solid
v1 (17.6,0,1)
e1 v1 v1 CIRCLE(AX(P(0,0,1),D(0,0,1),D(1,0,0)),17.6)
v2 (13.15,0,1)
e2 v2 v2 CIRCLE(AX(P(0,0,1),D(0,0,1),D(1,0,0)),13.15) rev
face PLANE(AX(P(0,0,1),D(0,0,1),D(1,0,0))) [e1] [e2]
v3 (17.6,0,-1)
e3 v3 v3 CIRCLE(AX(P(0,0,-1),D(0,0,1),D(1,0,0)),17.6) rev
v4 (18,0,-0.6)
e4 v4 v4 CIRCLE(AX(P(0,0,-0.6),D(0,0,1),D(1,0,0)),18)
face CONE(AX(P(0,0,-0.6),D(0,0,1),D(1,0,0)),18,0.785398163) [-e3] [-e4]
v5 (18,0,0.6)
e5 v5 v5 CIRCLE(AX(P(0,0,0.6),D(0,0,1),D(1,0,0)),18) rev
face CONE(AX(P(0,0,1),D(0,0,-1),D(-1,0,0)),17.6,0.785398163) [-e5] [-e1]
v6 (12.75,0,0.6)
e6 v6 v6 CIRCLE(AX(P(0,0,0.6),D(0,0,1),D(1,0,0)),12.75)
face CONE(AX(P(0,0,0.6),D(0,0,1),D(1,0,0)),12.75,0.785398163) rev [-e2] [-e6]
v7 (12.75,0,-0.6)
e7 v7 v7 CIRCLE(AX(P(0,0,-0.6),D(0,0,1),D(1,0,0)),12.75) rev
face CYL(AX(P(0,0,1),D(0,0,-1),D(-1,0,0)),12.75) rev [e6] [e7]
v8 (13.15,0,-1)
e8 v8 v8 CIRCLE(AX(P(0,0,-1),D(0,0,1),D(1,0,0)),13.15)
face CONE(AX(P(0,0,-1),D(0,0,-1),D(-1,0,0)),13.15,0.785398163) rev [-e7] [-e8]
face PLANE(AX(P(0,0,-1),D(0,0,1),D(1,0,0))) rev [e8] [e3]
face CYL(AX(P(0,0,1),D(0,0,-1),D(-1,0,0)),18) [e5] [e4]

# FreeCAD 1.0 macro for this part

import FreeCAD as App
import Part
import Sketcher

V = App.Vector


def edges_at(feature, points):
    """Names of the edges that pass closest to the given points."""
    edges = feature.Shape.Edges
    near = lambda p: min(range(len(edges)), key=lambda i: edges[i].distToShape(Part.Vertex(*p))[0])
    return sorted({f"Edge{near(p) + 1}" for p in points})

doc = App.newDocument("Part")
body = doc.addObject("PartDesign::Body", "Body")

# Sketch on XY plane
sketch1 = body.newObject("Sketcher::SketchObject", "Sketch")
sketch1.AttachmentSupport = (doc.getObject("XY_Plane"), [""])
sketch1.MapMode = "FlatFace"
sketch1.addGeometry([
    Part.Circle(V(0, 0, 0), V(0, 0, 1), 18),
    Part.Circle(V(0, 0, 0), V(0, 0, 1), 13),
], False)
sketch1.addConstraint([
    Sketcher.Constraint("Coincident", 0, 3, -1, 1),
    Sketcher.Constraint("Coincident", 1, 3, -1, 1),
    Sketcher.Constraint("Diameter", 0, 36.0),
    Sketcher.Constraint("Diameter", 1, 25.5),
])
pad1 = body.newObject("PartDesign::Pad", "Pad")
pad1.Profile = sketch1
pad1.Length = 2
pad1.Midplane = True
doc.recompute()

chamfer = body.newObject("PartDesign::Chamfer", "Chamfer")
chamfer.Base = (pad1, edges_at(pad1, [
    (-18, 0, -1),
    (-18, 0, 1),
    (-12.75, 0, -1),
    (-12.75, 0, 1),
]))
chamfer.Size = 0.4

doc.recompute()
